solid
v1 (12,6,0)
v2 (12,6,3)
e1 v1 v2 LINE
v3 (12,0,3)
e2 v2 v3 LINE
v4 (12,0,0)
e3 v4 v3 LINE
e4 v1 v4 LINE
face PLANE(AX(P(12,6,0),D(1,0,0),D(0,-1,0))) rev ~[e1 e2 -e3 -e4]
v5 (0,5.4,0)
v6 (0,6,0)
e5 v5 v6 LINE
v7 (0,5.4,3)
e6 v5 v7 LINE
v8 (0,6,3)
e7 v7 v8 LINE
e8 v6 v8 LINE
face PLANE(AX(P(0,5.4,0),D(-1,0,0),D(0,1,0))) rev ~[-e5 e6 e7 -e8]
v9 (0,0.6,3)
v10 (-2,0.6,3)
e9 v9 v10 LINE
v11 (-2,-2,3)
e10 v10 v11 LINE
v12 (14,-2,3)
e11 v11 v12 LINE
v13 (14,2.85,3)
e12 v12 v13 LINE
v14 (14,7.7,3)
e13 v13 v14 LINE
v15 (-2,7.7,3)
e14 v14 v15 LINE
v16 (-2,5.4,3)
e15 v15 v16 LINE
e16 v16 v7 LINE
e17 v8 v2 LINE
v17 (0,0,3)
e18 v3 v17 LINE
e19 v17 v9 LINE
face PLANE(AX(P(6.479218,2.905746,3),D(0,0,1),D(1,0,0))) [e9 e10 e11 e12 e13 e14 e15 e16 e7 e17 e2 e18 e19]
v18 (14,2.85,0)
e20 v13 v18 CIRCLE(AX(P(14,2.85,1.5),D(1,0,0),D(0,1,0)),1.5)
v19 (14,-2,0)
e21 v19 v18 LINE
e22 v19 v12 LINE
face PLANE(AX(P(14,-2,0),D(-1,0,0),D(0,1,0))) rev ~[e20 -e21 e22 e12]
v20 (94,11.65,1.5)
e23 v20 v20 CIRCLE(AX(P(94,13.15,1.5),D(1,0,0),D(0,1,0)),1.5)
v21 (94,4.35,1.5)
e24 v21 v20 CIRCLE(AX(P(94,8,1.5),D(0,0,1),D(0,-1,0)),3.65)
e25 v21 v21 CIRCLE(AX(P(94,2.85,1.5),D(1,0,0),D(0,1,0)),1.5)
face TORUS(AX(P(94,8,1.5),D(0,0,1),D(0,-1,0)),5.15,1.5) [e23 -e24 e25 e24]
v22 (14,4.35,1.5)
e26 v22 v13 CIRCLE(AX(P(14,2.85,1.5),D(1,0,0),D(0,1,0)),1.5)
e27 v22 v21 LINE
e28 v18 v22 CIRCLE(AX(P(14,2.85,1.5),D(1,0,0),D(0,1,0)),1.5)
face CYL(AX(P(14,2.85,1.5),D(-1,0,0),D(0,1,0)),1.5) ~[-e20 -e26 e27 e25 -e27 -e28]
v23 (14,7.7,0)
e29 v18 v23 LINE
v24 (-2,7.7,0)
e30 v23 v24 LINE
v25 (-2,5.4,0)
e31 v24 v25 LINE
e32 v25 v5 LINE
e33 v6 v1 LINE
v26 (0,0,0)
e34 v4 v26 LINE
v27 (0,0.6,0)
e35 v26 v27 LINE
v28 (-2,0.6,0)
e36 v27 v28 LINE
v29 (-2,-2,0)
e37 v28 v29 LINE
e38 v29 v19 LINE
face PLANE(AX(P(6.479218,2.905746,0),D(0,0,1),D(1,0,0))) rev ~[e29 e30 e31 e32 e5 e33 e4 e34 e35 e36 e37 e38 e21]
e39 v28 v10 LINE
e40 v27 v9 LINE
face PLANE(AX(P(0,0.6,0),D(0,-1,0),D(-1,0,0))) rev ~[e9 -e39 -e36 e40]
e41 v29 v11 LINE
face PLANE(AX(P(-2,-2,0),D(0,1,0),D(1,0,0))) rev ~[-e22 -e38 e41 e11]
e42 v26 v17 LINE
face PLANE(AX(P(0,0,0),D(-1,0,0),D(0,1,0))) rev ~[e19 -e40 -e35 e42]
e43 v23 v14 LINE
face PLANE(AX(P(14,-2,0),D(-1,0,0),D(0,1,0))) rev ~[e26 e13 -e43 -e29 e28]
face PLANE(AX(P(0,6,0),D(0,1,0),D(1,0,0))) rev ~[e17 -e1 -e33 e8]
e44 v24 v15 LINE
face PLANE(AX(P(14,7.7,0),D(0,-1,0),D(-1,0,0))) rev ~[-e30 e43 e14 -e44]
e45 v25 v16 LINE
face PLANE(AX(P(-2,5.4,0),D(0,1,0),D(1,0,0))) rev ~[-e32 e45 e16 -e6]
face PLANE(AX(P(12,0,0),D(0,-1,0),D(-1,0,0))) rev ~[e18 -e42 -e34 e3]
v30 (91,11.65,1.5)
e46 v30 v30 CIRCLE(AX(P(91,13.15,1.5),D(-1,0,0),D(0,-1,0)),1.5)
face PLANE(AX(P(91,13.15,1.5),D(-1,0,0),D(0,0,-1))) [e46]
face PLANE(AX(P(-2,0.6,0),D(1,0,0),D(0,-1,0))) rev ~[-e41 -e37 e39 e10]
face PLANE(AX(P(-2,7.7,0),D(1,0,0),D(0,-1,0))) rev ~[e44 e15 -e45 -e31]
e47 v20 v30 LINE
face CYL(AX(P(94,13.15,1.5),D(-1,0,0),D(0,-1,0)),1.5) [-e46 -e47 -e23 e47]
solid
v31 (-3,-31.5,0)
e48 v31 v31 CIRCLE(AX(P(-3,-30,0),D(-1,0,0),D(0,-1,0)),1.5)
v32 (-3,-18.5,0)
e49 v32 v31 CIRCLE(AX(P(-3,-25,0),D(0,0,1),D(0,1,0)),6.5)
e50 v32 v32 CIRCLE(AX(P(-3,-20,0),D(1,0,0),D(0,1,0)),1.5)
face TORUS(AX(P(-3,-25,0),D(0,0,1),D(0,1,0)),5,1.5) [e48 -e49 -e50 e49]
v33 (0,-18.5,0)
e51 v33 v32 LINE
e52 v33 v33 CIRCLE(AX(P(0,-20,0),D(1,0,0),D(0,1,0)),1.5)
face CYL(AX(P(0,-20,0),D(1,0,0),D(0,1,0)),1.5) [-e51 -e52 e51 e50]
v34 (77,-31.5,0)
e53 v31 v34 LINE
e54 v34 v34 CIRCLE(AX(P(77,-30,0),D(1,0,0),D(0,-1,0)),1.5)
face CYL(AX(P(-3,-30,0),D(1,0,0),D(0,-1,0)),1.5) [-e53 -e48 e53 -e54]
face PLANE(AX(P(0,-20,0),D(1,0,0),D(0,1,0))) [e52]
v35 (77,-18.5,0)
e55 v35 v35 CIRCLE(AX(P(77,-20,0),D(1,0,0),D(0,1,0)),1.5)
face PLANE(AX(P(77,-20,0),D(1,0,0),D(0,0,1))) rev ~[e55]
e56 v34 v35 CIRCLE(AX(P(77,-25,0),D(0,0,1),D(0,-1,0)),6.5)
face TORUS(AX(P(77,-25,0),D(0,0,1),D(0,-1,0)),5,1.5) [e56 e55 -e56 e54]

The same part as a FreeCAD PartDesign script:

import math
import FreeCAD as App
import Part
import Sketcher

doc = App.newDocument("Part")
body = doc.addObject("PartDesign::Body", "Body")

# Sketch on XY plane
sketch1 = body.newObject("Sketcher::SketchObject", "Sketch")
sketch1.AttachmentSupport = (doc.getObject("XY_Plane"), [""])
sketch1.MapMode = "FlatFace"
sketch1.addGeometry([
    Part.LineSegment(App.Vector(12, 0, 0), App.Vector(0, 0, 0)),  # 0
    Part.LineSegment(App.Vector(0, 0, 0), App.Vector(0, 0.6, 0)),  # 1
    Part.LineSegment(App.Vector(0, 0.6, 0), App.Vector(-2, 0.6, 0)),  # 2
    Part.LineSegment(App.Vector(-2, 0.6, 0), App.Vector(-2, -2, 0)),  # 3
    Part.LineSegment(App.Vector(-2, -2, 0), App.Vector(14, -2, 0)),  # 4
    Part.LineSegment(App.Vector(14, -2, 0), App.Vector(14, 7.7, 0)),  # 5
    Part.LineSegment(App.Vector(14, 7.7, 0), App.Vector(-2, 7.7, 0)),  # 6
    Part.LineSegment(App.Vector(-2, 7.7, 0), App.Vector(-2, 5.4, 0)),  # 7
    Part.LineSegment(App.Vector(-2, 5.4, 0), App.Vector(0, 5.4, 0)),  # 8
    Part.LineSegment(App.Vector(0, 5.4, 0), App.Vector(0, 6, 0)),  # 9
    Part.LineSegment(App.Vector(0, 6, 0), App.Vector(12, 6, 0)),  # 10
    Part.LineSegment(App.Vector(12, 6, 0), App.Vector(12, 0, 0)),  # 11
], False)
sketch1.addConstraint([
    Sketcher.Constraint("Coincident", 0, 2, 1, 1),
    Sketcher.Constraint("Coincident", 1, 2, 2, 1),
    Sketcher.Constraint("Coincident", 2, 2, 3, 1),
    Sketcher.Constraint("Coincident", 3, 2, 4, 1),
    Sketcher.Constraint("Coincident", 4, 2, 5, 1),
    Sketcher.Constraint("Coincident", 5, 2, 6, 1),
    Sketcher.Constraint("Coincident", 6, 2, 7, 1),
    Sketcher.Constraint("Coincident", 7, 2, 8, 1),
    Sketcher.Constraint("Coincident", 8, 2, 9, 1),
    Sketcher.Constraint("Coincident", 9, 2, 10, 1),
    Sketcher.Constraint("Coincident", 10, 2, 11, 1),
    Sketcher.Constraint("Coincident", 11, 2, 0, 1),
    Sketcher.Constraint("Horizontal", 0),
    Sketcher.Constraint("Vertical", 1),
    Sketcher.Constraint("Horizontal", 2),
    Sketcher.Constraint("Vertical", 3),
    Sketcher.Constraint("Horizontal", 4),
    Sketcher.Constraint("Vertical", 5),
    Sketcher.Constraint("Horizontal", 6),
    Sketcher.Constraint("Vertical", 7),
    Sketcher.Constraint("Horizontal", 8),
    Sketcher.Constraint("Vertical", 9),
    Sketcher.Constraint("Horizontal", 10),
    Sketcher.Constraint("Vertical", 11),
    Sketcher.Constraint("Coincident", 0, 2, -1, 1),
    Sketcher.Constraint("PointOnObject", 8, 2, -2),
    Sketcher.Constraint("Vertical", 3, 2, 6, 2),
    Sketcher.Constraint("Equal", 1, 9),
    Sketcher.Constraint("DistanceX", 0, 2, 0, 1, 12.0),
    Sketcher.Constraint("DistanceX", 2, 2, 2, 1, 2.0),
    Sketcher.Constraint("DistanceX", 4, 1, 4, 2, 16.0),
    Sketcher.Constraint("DistanceY", 11, 2, 11, 1, 6.0),
    Sketcher.Constraint("DistanceY", 1, 1, 1, 2, 0.6),
    Sketcher.Constraint("DistanceY", 3, 2, 3, 1, 2.6),
    Sketcher.Constraint("DistanceY", 5, 1, 5, 2, 9.7),
])
pad1 = body.newObject("PartDesign::Pad", "Pad")
pad1.Profile = sketch1
pad1.Length = 3

# Sketch on YZ plane
sketch2 = body.newObject("Sketcher::SketchObject", "Sketch001")
sketch2.AttachmentSupport = (doc.getObject("YZ_Plane"), [""])
sketch2.MapMode = "FlatFace"
sketch2.AttachmentOffset = App.Placement(App.Vector(0, 0, 14), App.Rotation())
sketch2.addGeometry(Part.Circle(App.Vector(2.9, 1.5, 0), App.Vector(0, 0, 1), 1.5), False)
sketch2.addConstraint([
    Sketcher.Constraint("Diameter", 0, 3.0),
    Sketcher.Constraint("DistanceY", -1, 1, 0, 3, 1.5),
    Sketcher.Constraint("DistanceX", -1, 1, 0, 3, 2.85),
])
pad2 = body.newObject("PartDesign::Pad", "Pad001")
pad2.Profile = sketch2
pad2.Length = 80

# Sketch on YZ plane
sketch3 = body.newObject("Sketcher::SketchObject", "Sketch002")
sketch3.AttachmentSupport = (doc.getObject("YZ_Plane"), [""])
sketch3.MapMode = "FlatFace"
sketch3.AttachmentOffset = App.Placement(App.Vector(0, 0, 94), App.Rotation())
sketch3.addGeometry(Part.Circle(App.Vector(2.9, 1.5, 0), App.Vector(0, 0, 1), 1.5), False)
sketch3.addConstraint([
    Sketcher.Constraint("Diameter", 0, 3.0),
    Sketcher.Constraint("DistanceY", -1, 1, 0, 3, 1.5),
    Sketcher.Constraint("DistanceX", -1, 1, 0, 3, 2.85),
])

# Sketch on XY plane
sketch4 = body.newObject("Sketcher::SketchObject", "Sketch003")
sketch4.AttachmentSupport = (doc.getObject("XY_Plane"), [""])
sketch4.MapMode = "FlatFace"
sketch4.AttachmentOffset = App.Placement(App.Vector(0, 0, 1.5), App.Rotation())
sketch4.addGeometry([
    Part.ArcOfCircle(Part.Circle(App.Vector(94, 8, 0), App.Vector(0, 0, 1), 5), math.radians(-90), math.radians(90)),
    Part.LineSegment(App.Vector(94, 13, 0), App.Vector(91, 13, 0)),
], False)
sketch4.addConstraint([
    Sketcher.Constraint("Tangent", 0, 2, 1, 1),
    Sketcher.Constraint("Horizontal", 1),
    Sketcher.Constraint("Radius", 0, 5.0),
    Sketcher.Constraint("DistanceX", 1, 2, 1, 1, 3.0),
    Sketcher.Constraint("DistanceX", -1, 1, 0, 3, 94.0),
    Sketcher.Constraint("DistanceY", -1, 1, 0, 3, 8.0),
    Sketcher.Constraint("DistanceX", -1, 1, 0, 1, 94.0),
])
doc.recompute()

additivepipe = body.newObject("PartDesign::AdditivePipe", "AdditivePipe")
additivepipe.Profile = sketch3
additivepipe.Spine = (sketch4, ["Edge1", "Edge2"])
body2 = doc.addObject("PartDesign::Body", "Body001")

# Sketch on YZ plane
sketch5 = body2.newObject("Sketcher::SketchObject", "Sketch004")
sketch5.AttachmentSupport = (doc.getObject("YZ_Plane001"), [""])
sketch5.MapMode = "FlatFace"
sketch5.addGeometry(Part.Circle(App.Vector(-20, 0, 0), App.Vector(0, 0, 1), 1.5), False)
sketch5.addConstraint([
    Sketcher.Constraint("PointOnObject", 0, 3, -1),
    Sketcher.Constraint("Diameter", 0, 3.0),
    Sketcher.Constraint("DistanceX", 0, 3, -1, 1, 20.0),
])
pad3 = body2.newObject("PartDesign::Pad", "Pad002")
pad3.Profile = sketch5
pad3.Length = 3
pad3.Reversed = True

# Sketch on YZ plane
sketch6 = body2.newObject("Sketcher::SketchObject", "Sketch005")
sketch6.AttachmentSupport = (doc.getObject("YZ_Plane001"), [""])
sketch6.MapMode = "FlatFace"
sketch6.addGeometry(Part.Circle(App.Vector(-20, 0, 0), App.Vector(0, 0, 1), 1.5), False)
sketch6.addConstraint([
    Sketcher.Constraint("PointOnObject", 0, 3, -1),
    Sketcher.Constraint("Diameter", 0, 3.0),
    Sketcher.Constraint("DistanceX", 0, 3, -1, 1, 20.0),
])

# Sketch on XY plane
sketch7 = body2.newObject("Sketcher::SketchObject", "Sketch006")
sketch7.AttachmentSupport = (doc.getObject("XY_Plane001"), [""])
sketch7.MapMode = "FlatFace"
sketch7.addGeometry([
    Part.LineSegment(App.Vector(0, -20, 0), App.Vector(-3, -20, 0)),
    Part.ArcOfCircle(Part.Circle(App.Vector(-3, -25, 0), App.Vector(0, 0, 1), 5), math.radians(90), math.radians(270)),
    Part.LineSegment(App.Vector(-3, -30, 0), App.Vector(77, -30, 0)),
    Part.ArcOfCircle(Part.Circle(App.Vector(77, -25, 0), App.Vector(0, 0, 1), 5), math.radians(-90), math.radians(90)),
], False)
sketch7.addConstraint([
    Sketcher.Constraint("Tangent", 0, 2, 1, 1),
    Sketcher.Constraint("Tangent", 1, 2, 2, 1),
    Sketcher.Constraint("Tangent", 2, 2, 3, 1),
    Sketcher.Constraint("Horizontal", 0),
    Sketcher.Constraint("Horizontal", 2),
    Sketcher.Constraint("Equal", 1, 3),
    Sketcher.Constraint("PointOnObject", 0, 1, -2),
    Sketcher.Constraint("Vertical", 2, 2, 3, 2),
    Sketcher.Constraint("Radius", 1, 5.0),
    Sketcher.Constraint("DistanceX", 0, 2, 0, 1, 3.0),
    Sketcher.Constraint("DistanceX", 2, 1, 2, 2, 80.0),
    Sketcher.Constraint("DistanceY", 1, 3, -1, 1, 25.0),
])
doc.recompute()

additivepipe2 = body2.newObject("PartDesign::AdditivePipe", "AdditivePipe001")
additivepipe2.Profile = sketch6
additivepipe2.Spine = (sketch7, ["Edge1", "Edge2", "Edge3", "Edge4"])

doc.recompute()
